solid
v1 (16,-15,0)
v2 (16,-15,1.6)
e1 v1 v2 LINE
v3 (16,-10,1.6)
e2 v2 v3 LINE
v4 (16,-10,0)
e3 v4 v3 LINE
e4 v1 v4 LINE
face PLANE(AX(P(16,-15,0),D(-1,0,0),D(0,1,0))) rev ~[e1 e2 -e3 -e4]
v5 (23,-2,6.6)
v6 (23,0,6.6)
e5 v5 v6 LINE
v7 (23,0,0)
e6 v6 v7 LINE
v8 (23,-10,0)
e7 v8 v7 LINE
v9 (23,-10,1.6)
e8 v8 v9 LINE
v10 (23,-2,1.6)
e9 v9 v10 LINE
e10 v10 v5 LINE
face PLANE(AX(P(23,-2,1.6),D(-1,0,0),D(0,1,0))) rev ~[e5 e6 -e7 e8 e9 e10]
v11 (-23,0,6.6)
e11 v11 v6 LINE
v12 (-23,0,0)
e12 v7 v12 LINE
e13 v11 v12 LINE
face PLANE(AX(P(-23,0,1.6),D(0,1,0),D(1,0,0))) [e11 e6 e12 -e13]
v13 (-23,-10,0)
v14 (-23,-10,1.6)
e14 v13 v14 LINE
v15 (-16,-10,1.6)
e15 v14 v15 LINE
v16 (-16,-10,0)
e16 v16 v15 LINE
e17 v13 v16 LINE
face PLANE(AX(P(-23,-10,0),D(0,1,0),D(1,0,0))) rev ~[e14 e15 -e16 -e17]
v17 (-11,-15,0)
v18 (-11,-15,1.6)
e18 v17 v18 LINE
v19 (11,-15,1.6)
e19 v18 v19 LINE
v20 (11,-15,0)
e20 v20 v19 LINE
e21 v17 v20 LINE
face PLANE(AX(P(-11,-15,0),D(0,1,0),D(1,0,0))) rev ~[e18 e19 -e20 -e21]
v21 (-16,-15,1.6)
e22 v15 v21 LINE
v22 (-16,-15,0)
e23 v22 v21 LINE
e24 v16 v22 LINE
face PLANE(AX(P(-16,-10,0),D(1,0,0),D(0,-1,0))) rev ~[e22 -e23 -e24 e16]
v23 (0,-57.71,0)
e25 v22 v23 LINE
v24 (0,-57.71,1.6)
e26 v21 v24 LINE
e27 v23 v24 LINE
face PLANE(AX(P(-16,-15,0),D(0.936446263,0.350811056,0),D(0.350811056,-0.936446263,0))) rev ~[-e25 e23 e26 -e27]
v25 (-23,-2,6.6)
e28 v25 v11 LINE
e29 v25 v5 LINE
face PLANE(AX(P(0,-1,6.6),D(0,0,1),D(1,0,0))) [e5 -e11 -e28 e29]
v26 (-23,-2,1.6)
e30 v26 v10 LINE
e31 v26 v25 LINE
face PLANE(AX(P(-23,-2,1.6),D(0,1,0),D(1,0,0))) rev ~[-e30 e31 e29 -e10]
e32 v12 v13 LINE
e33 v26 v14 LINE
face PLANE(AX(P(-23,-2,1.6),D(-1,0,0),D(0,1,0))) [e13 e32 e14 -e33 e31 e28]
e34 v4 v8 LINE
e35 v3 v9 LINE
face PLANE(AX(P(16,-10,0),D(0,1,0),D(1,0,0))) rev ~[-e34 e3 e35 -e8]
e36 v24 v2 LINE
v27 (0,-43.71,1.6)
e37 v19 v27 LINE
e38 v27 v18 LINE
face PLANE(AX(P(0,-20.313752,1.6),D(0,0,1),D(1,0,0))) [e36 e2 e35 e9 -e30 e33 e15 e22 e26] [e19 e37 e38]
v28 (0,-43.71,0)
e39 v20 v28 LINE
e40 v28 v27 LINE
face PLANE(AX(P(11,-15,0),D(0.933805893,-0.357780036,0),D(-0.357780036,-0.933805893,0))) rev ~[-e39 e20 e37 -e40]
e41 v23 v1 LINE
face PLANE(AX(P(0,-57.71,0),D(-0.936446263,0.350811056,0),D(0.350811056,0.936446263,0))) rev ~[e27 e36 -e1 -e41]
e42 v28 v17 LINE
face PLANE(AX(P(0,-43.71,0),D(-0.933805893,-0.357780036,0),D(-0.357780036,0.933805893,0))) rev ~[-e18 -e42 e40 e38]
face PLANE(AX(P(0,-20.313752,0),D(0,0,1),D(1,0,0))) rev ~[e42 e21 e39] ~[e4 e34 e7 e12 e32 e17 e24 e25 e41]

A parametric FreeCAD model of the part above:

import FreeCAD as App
import Part
import Sketcher
from FreeCAD import Vector
Q = App.Units.Quantity

doc = App.newDocument("Part")
body = doc.addObject("PartDesign::Body", "Body")

sketch1 = doc.addObject("Sketcher::SketchObject", "Sketch")
body.addObject(sketch1)
sketch1.AttachmentSupport = (doc.XY_Plane, [""])
sketch1.MapMode = "FlatFace"
sketch1.addGeometry([
    Part.LineSegment(Vector(23, 0, 0), Vector(-23, 0, 0)),
    Part.LineSegment(Vector(-23, 0, 0), Vector(-23, -10, 0)),
    Part.LineSegment(Vector(-23, -10, 0), Vector(-16, -10, 0)),
    Part.LineSegment(Vector(-16, -10, 0), Vector(-16, -15, 0)),
    Part.LineSegment(Vector(-16, -15, 0), Vector(0, -57.71, 0)),
    Part.LineSegment(Vector(0, -57.71, 0), Vector(16, -15, 0)),
    Part.LineSegment(Vector(16, -15, 0), Vector(16, -10, 0)),
    Part.LineSegment(Vector(16, -10, 0), Vector(23, -10, 0)),
    Part.LineSegment(Vector(23, -10, 0), Vector(23, 0, 0)),
    Part.LineSegment(Vector(11, -15, 0), Vector(0, -43.71, 0)),
    Part.LineSegment(Vector(0, -43.71, 0), Vector(-11, -15, 0)),
    Part.LineSegment(Vector(-11, -15, 0), Vector(11, -15, 0)),
], False)
sketch1.addConstraint([
    Sketcher.Constraint("Coincident", 0, 2, 1, 1),
    Sketcher.Constraint("Coincident", 1, 2, 2, 1),
    Sketcher.Constraint("Coincident", 2, 2, 3, 1),
    Sketcher.Constraint("Coincident", 3, 2, 4, 1),
    Sketcher.Constraint("Coincident", 4, 2, 5, 1),
    Sketcher.Constraint("Coincident", 5, 2, 6, 1),
    Sketcher.Constraint("Coincident", 6, 2, 7, 1),
    Sketcher.Constraint("Coincident", 7, 2, 8, 1),
    Sketcher.Constraint("Coincident", 8, 2, 0, 1),
    Sketcher.Constraint("Coincident", 9, 2, 10, 1),
    Sketcher.Constraint("Coincident", 10, 2, 11, 1),
    Sketcher.Constraint("Coincident", 11, 2, 9, 1),
    Sketcher.Constraint("Horizontal", 0),
    Sketcher.Constraint("Vertical", 1),
    Sketcher.Constraint("Horizontal", 2),
    Sketcher.Constraint("Vertical", 3),
    Sketcher.Constraint("Vertical", 6),
    Sketcher.Constraint("Horizontal", 7),
    Sketcher.Constraint("Vertical", 8),
    Sketcher.Constraint("Horizontal", 11),
    Sketcher.Constraint("Symmetric", 0, 2, 8, 2, -1, 1),
    Sketcher.Constraint("Symmetric", 3, 2, 5, 2, -2),
    Sketcher.Constraint("PointOnObject", 4, 2, -2),
    Sketcher.Constraint("PointOnObject", 9, 2, -2),
    Sketcher.Constraint("Horizontal", 2, 2, 6, 2),
    Sketcher.Constraint("Horizontal", 5, 2, 10, 2),
    Sketcher.Constraint("Equal", 9, 10),
    Sketcher.Constraint("DistanceX", 0, 2, 0, 1, Q("46 mm")),
    Sketcher.Constraint("DistanceX", 2, 1, 2, 2, Q("7 mm")),
    Sketcher.Constraint("DistanceX", 11, 1, 11, 2, Q("22 mm")),
    Sketcher.Constraint("DistanceY", 1, 2, 1, 1, Q("10 mm")),
    Sketcher.Constraint("DistanceY", 3, 2, 3, 1, Q("5 mm")),
    Sketcher.Constraint("DistanceY", 4, 2, 9, 2, Q("14 mm")),
    Sketcher.Constraint("DistanceY", 4, 2, -1, 1, Q("57.71 mm")),
])
pad1 = doc.addObject("PartDesign::Pad", "Pad")
body.addObject(pad1)
pad1.Profile = sketch1
pad1.Length = 1.6

sketch2 = doc.addObject("Sketcher::SketchObject", "Sketch001")
body.addObject(sketch2)
sketch2.AttachmentSupport = (doc.XY_Plane, [""])
sketch2.MapMode = "FlatFace"
sketch2.AttachmentOffset = App.Placement(Vector(0, 0, 1.6), App.Rotation())
sketch2.addGeometry([
    Part.LineSegment(Vector(-23, 0, 0), Vector(-23, -2, 0)),
    Part.LineSegment(Vector(-23, -2, 0), Vector(23, -2, 0)),
    Part.LineSegment(Vector(23, -2, 0), Vector(23, 0, 0)),
    Part.LineSegment(Vector(23, 0, 0), Vector(-23, 0, 0)),
], False)
sketch2.addConstraint([
    Sketcher.Constraint("Coincident", 0, 2, 1, 1),
    Sketcher.Constraint("Coincident", 1, 2, 2, 1),
    Sketcher.Constraint("Coincident", 2, 2, 3, 1),
    Sketcher.Constraint("Coincident", 3, 2, 0, 1),
    Sketcher.Constraint("Vertical", 0),
    Sketcher.Constraint("Horizontal", 1),
    Sketcher.Constraint("Vertical", 2),
    Sketcher.Constraint("Horizontal", 3),
    Sketcher.Constraint("Symmetric", 2, 2, 3, 2, -1, 1),
    Sketcher.Constraint("DistanceX", 1, 1, 1, 2, Q("46 mm")),
    Sketcher.Constraint("DistanceY", 0, 2, 0, 1, Q("2 mm")),
])
pad2 = doc.addObject("PartDesign::Pad", "Pad001")
body.addObject(pad2)
pad2.Profile = sketch2
pad2.Length = 5

doc.recompute()
